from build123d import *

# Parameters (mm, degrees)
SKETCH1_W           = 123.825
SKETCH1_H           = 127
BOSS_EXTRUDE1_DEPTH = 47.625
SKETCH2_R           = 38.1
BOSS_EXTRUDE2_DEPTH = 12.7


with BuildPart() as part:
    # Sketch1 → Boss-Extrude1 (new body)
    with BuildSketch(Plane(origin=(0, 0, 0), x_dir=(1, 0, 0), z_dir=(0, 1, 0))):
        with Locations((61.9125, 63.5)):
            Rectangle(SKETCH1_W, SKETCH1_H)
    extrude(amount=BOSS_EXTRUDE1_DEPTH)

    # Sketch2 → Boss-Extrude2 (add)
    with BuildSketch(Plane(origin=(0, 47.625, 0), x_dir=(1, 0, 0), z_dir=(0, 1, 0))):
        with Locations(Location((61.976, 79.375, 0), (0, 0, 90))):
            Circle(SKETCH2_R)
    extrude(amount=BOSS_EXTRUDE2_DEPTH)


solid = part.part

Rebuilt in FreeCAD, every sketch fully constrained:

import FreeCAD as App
import Part
import Sketcher
from FreeCAD import Vector
Q = App.Units.Quantity


def add_polygon(sketch, points):
    """Adds a closed chain of lines whose ends are joined by coincident constraints."""
    first, n = sketch.GeometryCount, len(points)
    for a, b in zip(points, points[1:] + points[:1]):
        sketch.addGeometry(Part.LineSegment(App.Vector(*a, 0), App.Vector(*b, 0)), False)
    for i in range(n):
        sketch.addConstraint(Sketcher.Constraint("Coincident", first + i, 2, first + (i + 1) % n, 1))

doc = App.newDocument("Part")
body = doc.addObject("PartDesign::Body", "Body")

sketch1 = body.newObject("Sketcher::SketchObject", "Sketch")
sketch1.AttachmentSupport = (doc.getObject("XZ_Plane"), [""])
sketch1.MapMode = "FlatFace"
add_polygon(sketch1, [(0, -127), (0, 0), (124, 0), (124, -127)])
sketch1.addConstraint(Sketcher.Constraint("Vertical", 0))
sketch1.addConstraint(Sketcher.Constraint("Horizontal", 1))
sketch1.addConstraint(Sketcher.Constraint("Vertical", 2))
sketch1.addConstraint(Sketcher.Constraint("Horizontal", 3))
sketch1.addConstraint(Sketcher.Constraint("Coincident", 0, 2, -1, 1))
sketch1.addConstraint(Sketcher.Constraint("DistanceY", 0, 1, 0, 2, Q("5 in")))
sketch1.addConstraint(Sketcher.Constraint("DistanceX", 1, 1, 1, 2, Q("4.875 in")))
pad1 = body.newObject("PartDesign::Pad", "Pad")
pad1.Profile = sketch1
pad1.Length = Q("1.875 in")
pad1.Reversed = True

sketch2 = body.newObject("Sketcher::SketchObject", "Sketch001")
sketch2.AttachmentSupport = (doc.getObject("XZ_Plane"), [""])
sketch2.MapMode = "FlatFace"
sketch2.AttachmentOffset = App.Placement(Vector(0, 0, -1.875 * 25.4), App.Rotation())
sketch2.addGeometry(Part.Circle(Vector(62, -79, 0), Vector(0, 0, 1), 38), False)
sketch2.addConstraint(Sketcher.Constraint("Diameter", 0, Q("3 in")))
sketch2.addConstraint(Sketcher.Constraint("DistanceX", -1, 1, 0, 3, Q("2.44 in")))
sketch2.addConstraint(Sketcher.Constraint("DistanceY", 0, 3, -1, 1, Q("3.125 in")))
pad2 = body.newObject("PartDesign::Pad", "Pad001")
pad2.Profile = sketch2
pad2.Length = Q("0.5 in")
pad2.Reversed = True

doc.recompute()
